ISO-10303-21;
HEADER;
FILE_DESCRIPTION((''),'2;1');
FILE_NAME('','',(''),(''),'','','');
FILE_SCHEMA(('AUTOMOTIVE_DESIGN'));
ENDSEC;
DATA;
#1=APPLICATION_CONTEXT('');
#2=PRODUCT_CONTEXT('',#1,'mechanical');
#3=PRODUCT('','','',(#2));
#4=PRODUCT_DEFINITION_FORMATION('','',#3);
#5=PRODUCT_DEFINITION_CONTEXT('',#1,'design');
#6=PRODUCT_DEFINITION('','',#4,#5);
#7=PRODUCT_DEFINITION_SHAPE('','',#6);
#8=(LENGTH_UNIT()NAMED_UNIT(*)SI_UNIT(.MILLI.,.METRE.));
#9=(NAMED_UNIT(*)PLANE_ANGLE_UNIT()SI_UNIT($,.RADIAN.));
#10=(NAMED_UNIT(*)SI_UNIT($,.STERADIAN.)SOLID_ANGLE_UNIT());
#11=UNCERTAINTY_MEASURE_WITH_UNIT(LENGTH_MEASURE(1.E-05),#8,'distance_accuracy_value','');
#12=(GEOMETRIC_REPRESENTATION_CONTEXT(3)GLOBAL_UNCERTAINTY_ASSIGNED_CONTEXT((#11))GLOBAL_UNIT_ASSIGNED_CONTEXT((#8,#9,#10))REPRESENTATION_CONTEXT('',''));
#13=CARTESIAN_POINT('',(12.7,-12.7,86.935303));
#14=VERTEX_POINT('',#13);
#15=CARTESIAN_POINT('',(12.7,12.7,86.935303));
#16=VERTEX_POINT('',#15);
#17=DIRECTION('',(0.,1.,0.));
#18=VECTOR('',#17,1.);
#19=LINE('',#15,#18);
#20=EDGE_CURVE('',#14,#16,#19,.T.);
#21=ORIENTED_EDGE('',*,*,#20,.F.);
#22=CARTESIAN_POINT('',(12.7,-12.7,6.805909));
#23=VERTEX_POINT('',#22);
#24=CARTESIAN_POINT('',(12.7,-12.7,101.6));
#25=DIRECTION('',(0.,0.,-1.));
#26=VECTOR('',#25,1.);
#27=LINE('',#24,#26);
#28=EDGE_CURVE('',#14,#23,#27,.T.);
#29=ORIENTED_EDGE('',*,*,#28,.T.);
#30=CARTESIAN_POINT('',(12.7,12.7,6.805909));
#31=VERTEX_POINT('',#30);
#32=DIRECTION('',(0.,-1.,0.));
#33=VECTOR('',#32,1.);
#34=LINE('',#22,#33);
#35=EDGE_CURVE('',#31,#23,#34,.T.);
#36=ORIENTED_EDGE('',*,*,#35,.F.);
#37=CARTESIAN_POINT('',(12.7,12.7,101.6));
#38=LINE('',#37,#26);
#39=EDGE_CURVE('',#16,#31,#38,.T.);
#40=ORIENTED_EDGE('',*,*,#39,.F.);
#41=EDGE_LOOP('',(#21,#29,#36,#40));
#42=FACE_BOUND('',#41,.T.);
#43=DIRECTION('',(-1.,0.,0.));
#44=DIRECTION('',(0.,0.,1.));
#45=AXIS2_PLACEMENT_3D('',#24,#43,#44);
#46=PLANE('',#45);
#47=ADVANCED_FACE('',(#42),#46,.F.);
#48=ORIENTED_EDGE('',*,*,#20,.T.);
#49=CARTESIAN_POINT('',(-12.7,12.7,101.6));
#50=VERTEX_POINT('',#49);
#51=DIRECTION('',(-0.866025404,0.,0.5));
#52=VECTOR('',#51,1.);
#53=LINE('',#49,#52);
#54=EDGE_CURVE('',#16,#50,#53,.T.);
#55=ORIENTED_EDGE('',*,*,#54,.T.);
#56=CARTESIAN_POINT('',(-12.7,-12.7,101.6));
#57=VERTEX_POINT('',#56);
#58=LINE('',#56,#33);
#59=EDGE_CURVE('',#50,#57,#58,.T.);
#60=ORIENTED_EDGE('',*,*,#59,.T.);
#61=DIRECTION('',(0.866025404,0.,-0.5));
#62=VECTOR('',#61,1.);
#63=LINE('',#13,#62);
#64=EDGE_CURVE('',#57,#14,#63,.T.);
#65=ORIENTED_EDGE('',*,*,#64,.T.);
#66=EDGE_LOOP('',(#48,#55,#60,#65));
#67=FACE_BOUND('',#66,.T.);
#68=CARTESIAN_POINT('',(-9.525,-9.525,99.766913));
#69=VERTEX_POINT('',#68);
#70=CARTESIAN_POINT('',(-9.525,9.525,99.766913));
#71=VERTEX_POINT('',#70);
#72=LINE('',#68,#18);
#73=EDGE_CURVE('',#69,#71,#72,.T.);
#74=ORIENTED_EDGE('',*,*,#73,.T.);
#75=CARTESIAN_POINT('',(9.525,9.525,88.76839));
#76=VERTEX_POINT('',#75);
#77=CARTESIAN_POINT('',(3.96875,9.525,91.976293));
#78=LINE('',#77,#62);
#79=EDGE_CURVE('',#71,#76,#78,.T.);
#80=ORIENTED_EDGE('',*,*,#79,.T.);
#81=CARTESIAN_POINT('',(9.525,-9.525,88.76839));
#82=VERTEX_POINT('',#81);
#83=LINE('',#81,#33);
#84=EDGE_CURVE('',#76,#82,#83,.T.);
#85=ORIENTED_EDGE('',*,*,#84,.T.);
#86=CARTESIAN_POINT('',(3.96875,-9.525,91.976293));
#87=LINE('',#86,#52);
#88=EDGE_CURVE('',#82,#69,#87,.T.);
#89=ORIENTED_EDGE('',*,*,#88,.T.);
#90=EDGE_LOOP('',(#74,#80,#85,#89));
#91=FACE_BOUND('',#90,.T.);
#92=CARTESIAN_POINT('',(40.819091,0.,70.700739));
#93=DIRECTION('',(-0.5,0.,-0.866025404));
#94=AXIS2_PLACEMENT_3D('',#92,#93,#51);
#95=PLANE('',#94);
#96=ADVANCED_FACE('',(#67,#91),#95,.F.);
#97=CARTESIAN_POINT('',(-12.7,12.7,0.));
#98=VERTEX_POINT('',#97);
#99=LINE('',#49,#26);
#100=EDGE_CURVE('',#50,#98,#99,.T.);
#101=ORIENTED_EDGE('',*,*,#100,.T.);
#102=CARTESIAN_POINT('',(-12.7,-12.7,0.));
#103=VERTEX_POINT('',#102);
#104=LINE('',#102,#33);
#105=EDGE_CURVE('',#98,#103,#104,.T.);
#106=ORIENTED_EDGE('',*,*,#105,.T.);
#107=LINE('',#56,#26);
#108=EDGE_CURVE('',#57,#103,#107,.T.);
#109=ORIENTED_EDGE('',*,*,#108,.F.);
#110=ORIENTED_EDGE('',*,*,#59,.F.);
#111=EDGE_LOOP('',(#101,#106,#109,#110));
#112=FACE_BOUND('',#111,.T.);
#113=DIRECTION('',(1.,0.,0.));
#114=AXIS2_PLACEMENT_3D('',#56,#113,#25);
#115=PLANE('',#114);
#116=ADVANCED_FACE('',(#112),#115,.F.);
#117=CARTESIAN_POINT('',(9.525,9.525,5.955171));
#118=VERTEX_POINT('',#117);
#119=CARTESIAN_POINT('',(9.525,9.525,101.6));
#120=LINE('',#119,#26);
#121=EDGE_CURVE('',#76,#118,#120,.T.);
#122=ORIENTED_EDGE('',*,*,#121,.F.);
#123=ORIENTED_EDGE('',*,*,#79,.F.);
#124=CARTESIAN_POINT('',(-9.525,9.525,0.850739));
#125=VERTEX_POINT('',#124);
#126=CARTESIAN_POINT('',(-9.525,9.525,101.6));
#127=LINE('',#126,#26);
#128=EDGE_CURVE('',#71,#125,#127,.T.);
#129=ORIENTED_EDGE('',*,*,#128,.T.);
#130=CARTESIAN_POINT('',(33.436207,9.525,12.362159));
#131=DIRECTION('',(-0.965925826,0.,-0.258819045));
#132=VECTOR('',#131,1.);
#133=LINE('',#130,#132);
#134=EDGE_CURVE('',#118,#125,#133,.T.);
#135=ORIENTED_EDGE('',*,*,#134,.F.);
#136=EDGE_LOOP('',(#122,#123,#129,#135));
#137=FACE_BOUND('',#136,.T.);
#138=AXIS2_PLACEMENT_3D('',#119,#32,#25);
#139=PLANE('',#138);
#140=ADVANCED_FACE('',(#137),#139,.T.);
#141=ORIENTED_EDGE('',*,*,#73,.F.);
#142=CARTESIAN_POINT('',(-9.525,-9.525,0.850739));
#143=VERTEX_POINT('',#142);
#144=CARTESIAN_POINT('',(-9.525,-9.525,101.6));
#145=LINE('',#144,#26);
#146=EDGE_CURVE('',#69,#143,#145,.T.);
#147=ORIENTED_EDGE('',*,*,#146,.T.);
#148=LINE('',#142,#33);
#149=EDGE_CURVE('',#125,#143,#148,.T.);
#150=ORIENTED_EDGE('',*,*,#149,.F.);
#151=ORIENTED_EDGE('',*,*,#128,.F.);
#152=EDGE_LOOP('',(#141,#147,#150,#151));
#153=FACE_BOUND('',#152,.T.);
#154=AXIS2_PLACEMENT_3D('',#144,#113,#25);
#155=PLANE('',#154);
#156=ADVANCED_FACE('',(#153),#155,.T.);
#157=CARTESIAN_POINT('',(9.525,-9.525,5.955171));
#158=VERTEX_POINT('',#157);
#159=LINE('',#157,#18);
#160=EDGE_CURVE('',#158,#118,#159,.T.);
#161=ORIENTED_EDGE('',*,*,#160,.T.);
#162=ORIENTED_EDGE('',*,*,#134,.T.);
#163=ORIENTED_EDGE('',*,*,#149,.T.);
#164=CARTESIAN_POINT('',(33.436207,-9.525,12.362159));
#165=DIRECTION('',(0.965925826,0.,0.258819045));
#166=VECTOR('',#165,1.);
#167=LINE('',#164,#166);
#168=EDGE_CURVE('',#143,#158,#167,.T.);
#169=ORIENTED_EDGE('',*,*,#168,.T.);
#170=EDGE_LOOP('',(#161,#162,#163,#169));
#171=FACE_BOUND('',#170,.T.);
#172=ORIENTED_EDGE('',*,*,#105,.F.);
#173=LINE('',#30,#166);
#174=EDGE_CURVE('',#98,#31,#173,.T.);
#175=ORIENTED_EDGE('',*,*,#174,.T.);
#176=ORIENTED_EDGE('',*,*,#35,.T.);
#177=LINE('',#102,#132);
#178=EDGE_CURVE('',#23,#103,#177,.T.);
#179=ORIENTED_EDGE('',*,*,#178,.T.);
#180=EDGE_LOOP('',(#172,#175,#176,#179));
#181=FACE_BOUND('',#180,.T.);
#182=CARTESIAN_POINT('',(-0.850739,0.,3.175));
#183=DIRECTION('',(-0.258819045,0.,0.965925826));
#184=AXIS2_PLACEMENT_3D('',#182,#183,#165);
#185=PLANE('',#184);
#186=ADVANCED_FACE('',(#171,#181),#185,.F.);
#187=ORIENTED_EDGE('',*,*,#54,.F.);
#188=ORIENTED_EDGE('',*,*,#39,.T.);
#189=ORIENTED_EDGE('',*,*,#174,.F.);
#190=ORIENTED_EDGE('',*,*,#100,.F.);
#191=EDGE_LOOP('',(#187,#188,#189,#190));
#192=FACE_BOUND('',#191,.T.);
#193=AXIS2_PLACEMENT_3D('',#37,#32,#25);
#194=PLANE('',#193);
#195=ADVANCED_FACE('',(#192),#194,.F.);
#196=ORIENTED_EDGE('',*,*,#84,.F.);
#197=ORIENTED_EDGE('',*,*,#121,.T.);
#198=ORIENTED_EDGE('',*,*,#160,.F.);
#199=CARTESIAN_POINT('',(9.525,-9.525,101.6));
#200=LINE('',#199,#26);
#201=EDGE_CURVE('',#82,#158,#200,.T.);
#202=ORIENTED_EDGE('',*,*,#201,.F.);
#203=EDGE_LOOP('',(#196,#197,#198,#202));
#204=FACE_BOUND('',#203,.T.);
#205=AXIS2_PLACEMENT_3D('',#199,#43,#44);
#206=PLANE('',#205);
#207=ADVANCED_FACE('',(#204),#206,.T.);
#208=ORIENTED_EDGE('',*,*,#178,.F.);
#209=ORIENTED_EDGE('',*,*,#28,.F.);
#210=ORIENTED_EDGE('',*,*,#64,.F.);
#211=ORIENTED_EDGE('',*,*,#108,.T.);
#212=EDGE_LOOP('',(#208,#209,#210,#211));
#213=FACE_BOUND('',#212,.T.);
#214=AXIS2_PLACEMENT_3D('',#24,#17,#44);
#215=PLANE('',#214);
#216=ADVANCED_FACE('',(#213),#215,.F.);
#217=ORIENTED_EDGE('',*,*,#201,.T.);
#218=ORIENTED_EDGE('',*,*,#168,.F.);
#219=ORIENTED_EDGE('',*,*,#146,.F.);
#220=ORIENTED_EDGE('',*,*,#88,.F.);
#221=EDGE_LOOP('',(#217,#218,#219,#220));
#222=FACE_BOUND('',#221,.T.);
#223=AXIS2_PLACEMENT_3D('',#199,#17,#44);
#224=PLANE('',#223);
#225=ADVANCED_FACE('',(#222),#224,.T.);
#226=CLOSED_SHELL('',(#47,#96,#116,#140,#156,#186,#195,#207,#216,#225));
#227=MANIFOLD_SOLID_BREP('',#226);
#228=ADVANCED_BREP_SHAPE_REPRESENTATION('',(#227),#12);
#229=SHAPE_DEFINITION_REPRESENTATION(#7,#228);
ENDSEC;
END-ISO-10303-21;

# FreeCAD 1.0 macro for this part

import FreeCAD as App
import Part
import Sketcher
from FreeCAD import Vector
Q = App.Units.Quantity


def add_polygon(sketch, points):
    """Adds a closed chain of lines whose ends are joined by coincident constraints."""
    first, n = sketch.GeometryCount, len(points)
    for a, b in zip(points, points[1:] + points[:1]):
        sketch.addGeometry(Part.LineSegment(App.Vector(*a, 0), App.Vector(*b, 0)), False)
    for i in range(n):
        sketch.addConstraint(Sketcher.Constraint("Coincident", first + i, 2, first + (i + 1) % n, 1))

doc = App.newDocument("Part")
body = doc.addObject("PartDesign::Body", "Body")

# Sketch on XY plane
sketch1 = body.newObject("Sketcher::SketchObject", "Sketch")
sketch1.AttachmentSupport = (doc.getObject("XY_Plane"), [""])
sketch1.MapMode = "FlatFace"
add_polygon(sketch1, [(-13, 13), (-13, -13), (13, -13), (13, 13)])  # lines 0-3
add_polygon(sketch1, [(10, -10), (-10, -10), (-10, 10), (10, 10)])  # lines 4-7
sketch1.addConstraint(Sketcher.Constraint("Vertical", 0))
sketch1.addConstraint(Sketcher.Constraint("Horizontal", 1))
sketch1.addConstraint(Sketcher.Constraint("Vertical", 2))
sketch1.addConstraint(Sketcher.Constraint("Horizontal", 3))
sketch1.addConstraint(Sketcher.Constraint("Horizontal", 4))
sketch1.addConstraint(Sketcher.Constraint("Vertical", 5))
sketch1.addConstraint(Sketcher.Constraint("Horizontal", 6))
sketch1.addConstraint(Sketcher.Constraint("Vertical", 7))
sketch1.addConstraint(Sketcher.Constraint("Symmetric", 0, 2, 2, 2, -1, 1))
sketch1.addConstraint(Sketcher.Constraint("Symmetric", 4, 2, 6, 2, -1, 1))
sketch1.addConstraint(Sketcher.Constraint("Equal", 3, 0))
sketch1.addConstraint(Sketcher.Constraint("Equal", 6, 5))
sketch1.addConstraint(Sketcher.Constraint("DistanceX", 1, 1, 1, 2, Q("1 in")))
sketch1.addConstraint(Sketcher.Constraint("DistanceX", 4, 2, 4, 1, Q("0.75 in")))
pad1 = body.newObject("PartDesign::Pad", "Pad")
pad1.Profile = sketch1
pad1.Length = Q("4 in")

# Sketch on an angled plane
sketch2 = body.newObject("Sketcher::SketchObject", "Sketch001")
sketch2.Placement = App.Placement(Vector(-0.850739, 0, 3.175), App.Rotation(Vector(0, -1, 0), Vector(-0.965925826, 0, -0.258819045), Vector(0.258819045, 0, -0.965925826), "ZXY"))
add_polygon(sketch2, [(-13, 12), (-13, -14), (13, -14), (13, 12)])  # lines 0-3
sketch2.addConstraint(Sketcher.Constraint("Vertical", 0))
sketch2.addConstraint(Sketcher.Constraint("Horizontal", 1))
sketch2.addConstraint(Sketcher.Constraint("Vertical", 2))
sketch2.addConstraint(Sketcher.Constraint("Horizontal", 3))
sketch2.addConstraint(Sketcher.Constraint("DistanceX", 1, 1, 1, 2, Q("1 in")))
sketch2.addConstraint(Sketcher.Constraint("DistanceX", 0, 2, -1, 1, Q("0.5 in")))
sketch2.addConstraint(Sketcher.Constraint("DistanceY", 0, 2, 0, 1, Q("26.296015 mm")))
sketch2.addConstraint(Sketcher.Constraint("DistanceY", 0, 2, -1, 1, Q("14.028757 mm")))
pocket1 = body.newObject("PartDesign::Pocket", "Pocket")
pocket1.Profile = sketch2
pocket1.Type = "ThroughAll"
pocket1.Reversed = True

# Sketch on an angled plane
sketch3 = body.newObject("Sketcher::SketchObject", "Sketch002")
sketch3.Placement = App.Placement(Vector(40.819091, 0, 70.700739), App.Rotation(Vector(0, -1, 0), Vector(0.866025404, 0, -0.5), Vector(0.5, 0, 0.866025404), "ZXY"))
add_polygon(sketch3, [(-13, -32), (-13, -62), (13, -62), (13, -32)])  # lines 0-3
sketch3.addConstraint(Sketcher.Constraint("Vertical", 0))
sketch3.addConstraint(Sketcher.Constraint("Horizontal", 1))
sketch3.addConstraint(Sketcher.Constraint("Vertical", 2))
sketch3.addConstraint(Sketcher.Constraint("Horizontal", 3))
sketch3.addConstraint(Sketcher.Constraint("DistanceX", 1, 1, 1, 2, Q("1 in")))
sketch3.addConstraint(Sketcher.Constraint("DistanceX", 0, 2, -1, 1, Q("0.5 in")))
sketch3.addConstraint(Sketcher.Constraint("DistanceY", 0, 2, 0, 1, Q("29.329394 mm")))
sketch3.addConstraint(Sketcher.Constraint("DistanceY", 2, 2, -1, 1, Q("32.469129 mm")))
pocket2 = body.newObject("PartDesign::Pocket", "Pocket001")
pocket2.Profile = sketch3
pocket2.Type = "ThroughAll"
pocket2.Reversed = True

doc.recompute()
